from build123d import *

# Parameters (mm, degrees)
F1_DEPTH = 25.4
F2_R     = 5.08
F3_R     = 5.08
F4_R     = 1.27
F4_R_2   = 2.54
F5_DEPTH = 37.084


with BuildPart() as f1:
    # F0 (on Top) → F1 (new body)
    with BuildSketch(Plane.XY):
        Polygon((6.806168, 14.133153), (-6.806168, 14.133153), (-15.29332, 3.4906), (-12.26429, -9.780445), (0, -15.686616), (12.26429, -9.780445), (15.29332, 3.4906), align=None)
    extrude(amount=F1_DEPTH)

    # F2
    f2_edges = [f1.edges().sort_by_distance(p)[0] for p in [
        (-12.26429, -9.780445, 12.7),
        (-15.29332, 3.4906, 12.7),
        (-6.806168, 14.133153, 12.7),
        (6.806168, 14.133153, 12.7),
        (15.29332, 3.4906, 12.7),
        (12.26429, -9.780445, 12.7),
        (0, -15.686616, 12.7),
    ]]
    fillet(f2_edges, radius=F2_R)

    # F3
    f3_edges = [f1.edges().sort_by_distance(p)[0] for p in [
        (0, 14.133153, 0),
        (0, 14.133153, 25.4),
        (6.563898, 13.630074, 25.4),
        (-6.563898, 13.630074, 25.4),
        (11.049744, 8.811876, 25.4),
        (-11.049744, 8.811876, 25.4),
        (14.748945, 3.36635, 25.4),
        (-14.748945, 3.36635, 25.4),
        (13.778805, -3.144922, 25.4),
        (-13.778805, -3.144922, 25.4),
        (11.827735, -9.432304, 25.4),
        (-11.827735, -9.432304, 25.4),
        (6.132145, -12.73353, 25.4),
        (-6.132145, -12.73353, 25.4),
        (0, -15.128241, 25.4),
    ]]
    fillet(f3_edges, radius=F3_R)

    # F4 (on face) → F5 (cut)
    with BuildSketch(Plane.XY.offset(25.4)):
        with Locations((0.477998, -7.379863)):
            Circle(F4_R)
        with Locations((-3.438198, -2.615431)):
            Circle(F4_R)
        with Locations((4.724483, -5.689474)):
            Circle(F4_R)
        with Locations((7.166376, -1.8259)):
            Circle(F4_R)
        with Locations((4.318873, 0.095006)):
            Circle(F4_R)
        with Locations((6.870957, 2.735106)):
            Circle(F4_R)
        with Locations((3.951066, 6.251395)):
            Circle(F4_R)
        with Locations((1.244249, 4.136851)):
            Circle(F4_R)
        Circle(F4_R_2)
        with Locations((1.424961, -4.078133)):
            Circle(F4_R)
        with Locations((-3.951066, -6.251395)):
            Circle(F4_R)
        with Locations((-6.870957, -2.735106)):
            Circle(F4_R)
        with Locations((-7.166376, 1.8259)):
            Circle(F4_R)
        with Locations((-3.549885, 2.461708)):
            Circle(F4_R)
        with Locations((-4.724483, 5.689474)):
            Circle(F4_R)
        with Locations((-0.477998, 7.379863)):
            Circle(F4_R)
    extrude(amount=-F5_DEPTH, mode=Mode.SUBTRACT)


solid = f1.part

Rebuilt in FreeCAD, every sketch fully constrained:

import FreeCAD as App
import Part
import Sketcher
Q = App.Units.Quantity


def edges_at(feature, points):
    """Names of the edges that pass closest to the given points."""
    edges = feature.Shape.Edges
    near = lambda p: min(range(len(edges)), key=lambda i: edges[i].distToShape(Part.Vertex(*p))[0])
    return sorted({f"Edge{near(p) + 1}" for p in points})

doc = App.newDocument("Part")
body = doc.addObject("PartDesign::Body", "Body")

# Sketch on XY plane
sketch1 = body.newObject("Sketcher::SketchObject", "Sketch")
sketch1.AttachmentSupport = (doc.getObject("XY_Plane"), [""])
sketch1.MapMode = "FlatFace"
sketch1.addGeometry([
    Part.LineSegment(App.Vector(7, 14, 0), App.Vector(-7, 14, 0)),  # 0
    Part.LineSegment(App.Vector(-7, 14, 0), App.Vector(-15, 3, 0)),  # 1
    Part.LineSegment(App.Vector(-15, 3, 0), App.Vector(-12, -10, 0)),  # 2
    Part.LineSegment(App.Vector(-12, -10, 0), App.Vector(0, -16, 0)),  # 3
    Part.LineSegment(App.Vector(0, -16, 0), App.Vector(12, -10, 0)),  # 4
    Part.LineSegment(App.Vector(12, -10, 0), App.Vector(15, 3, 0)),  # 5
    Part.LineSegment(App.Vector(15, 3, 0), App.Vector(7, 14, 0)),  # 6
], False)
sketch1.addConstraint([
    Sketcher.Constraint("Coincident", 0, 2, 1, 1),
    Sketcher.Constraint("Coincident", 1, 2, 2, 1),
    Sketcher.Constraint("Coincident", 2, 2, 3, 1),
    Sketcher.Constraint("Coincident", 3, 2, 4, 1),
    Sketcher.Constraint("Coincident", 4, 2, 5, 1),
    Sketcher.Constraint("Coincident", 5, 2, 6, 1),
    Sketcher.Constraint("Coincident", 6, 2, 0, 1),
    Sketcher.Constraint("Horizontal", 0),
    Sketcher.Constraint("Symmetric", 2, 2, 4, 2, -2),
    Sketcher.Constraint("Symmetric", 1, 2, 5, 2, -2),
    Sketcher.Constraint("PointOnObject", 3, 2, -2),
    Sketcher.Constraint("Equal", 1, 2),
    Sketcher.Constraint("Equal", 2, 3),
    Sketcher.Constraint("Equal", 5, 6),
    Sketcher.Constraint("DistanceY", -1, 1, 1, 2, Q("3.4906 mm")),
    Sketcher.Constraint("DistanceY", 2, 2, 0, 2, Q("23.913598 mm")),
    Sketcher.Constraint("DistanceX", 0, 2, 0, 1, Q("13.612336 mm")),
    Sketcher.Constraint("DistanceX", 1, 2, -1, 1, Q("15.29332 mm")),
    Sketcher.Constraint("DistanceX", 2, 2, -1, 1, Q("12.26429 mm")),
])
pad1 = body.newObject("PartDesign::Pad", "Pad")
pad1.Profile = sketch1
pad1.Length = Q("1 in")
doc.recompute()

fillet = body.newObject("PartDesign::Fillet", "Fillet")
fillet.Base = (pad1, edges_at(pad1, [
    (-12.264, -9.78, 12.7),
    (-15.293, 3.491, 12.7),
    (-6.806, 14.133, 12.7),
    (6.806, 14.133, 12.7),
    (15.293, 3.491, 12.7),
    (12.264, -9.78, 12.7),
    (0, -15.687, 12.7),
]))
fillet.Radius = Q("0.2 in")
doc.recompute()

fillet2 = body.newObject("PartDesign::Fillet", "Fillet001")
fillet2.Base = (fillet, edges_at(fillet, [
    (0, 14.133, 0),
    (0, 14.133, 25.4),
    (6.564, 13.63, 25.4),
    (-6.564, 13.63, 25.4),
    (11.05, 8.812, 25.4),
    (-11.05, 8.812, 25.4),
    (14.749, 3.366, 25.4),
    (-14.749, 3.366, 25.4),
    (13.779, -3.145, 25.4),
    (-13.779, -3.145, 25.4),
    (11.828, -9.432, 25.4),
    (-11.828, -9.432, 25.4),
    (6.132, -12.734, 25.4),
    (-6.132, -12.734, 25.4),
    (0, -15.128, 25.4),
]))
fillet2.Radius = Q("0.2 in")

# Sketch on XY plane
sketch2 = body.newObject("Sketcher::SketchObject", "Sketch001")
sketch2.AttachmentSupport = (doc.getObject("XY_Plane"), [""])
sketch2.MapMode = "FlatFace"
sketch2.AttachmentOffset = App.Placement(App.Vector(0, 0, 1 * 25.4), App.Rotation())
sketch2.addGeometry([
    Part.Circle(App.Vector(0.5, -7.4, 0), App.Vector(0, 0, 1), 1.3),  # 0
    Part.Circle(App.Vector(-3.4, -2.6, 0), App.Vector(0, 0, 1), 1.3),  # 1
    Part.Circle(App.Vector(4.7, -5.7, 0), App.Vector(0, 0, 1), 1.3),  # 2
    Part.Circle(App.Vector(7.2, -1.8, 0), App.Vector(0, 0, 1), 1.3),  # 3
    Part.Circle(App.Vector(4.3, 0.1, 0), App.Vector(0, 0, 1), 1.3),  # 4
    Part.Circle(App.Vector(6.9, 2.7, 0), App.Vector(0, 0, 1), 1.3),  # 5
    Part.Circle(App.Vector(4, 6.3, 0), App.Vector(0, 0, 1), 1.3),  # 6
    Part.Circle(App.Vector(1.2, 4.1, 0), App.Vector(0, 0, 1), 1.3),  # 7
    Part.Circle(App.Vector(0, 0, 0), App.Vector(0, 0, 1), 2.5),  # 8
    Part.Circle(App.Vector(1.4, -4.1, 0), App.Vector(0, 0, 1), 1.3),  # 9
    Part.Circle(App.Vector(-4, -6.3, 0), App.Vector(0, 0, 1), 1.3),  # 10
    Part.Circle(App.Vector(-6.9, -2.7, 0), App.Vector(0, 0, 1), 1.3),  # 11
    Part.Circle(App.Vector(-7.2, 1.8, 0), App.Vector(0, 0, 1), 1.3),  # 12
    Part.Circle(App.Vector(-3.5, 2.5, 0), App.Vector(0, 0, 1), 1.3),  # 13
    Part.Circle(App.Vector(-4.7, 5.7, 0), App.Vector(0, 0, 1), 1.3),  # 14
    Part.Circle(App.Vector(-0.5, 7.4, 0), App.Vector(0, 0, 1), 1.3),  # 15
], False)
sketch2.addConstraint([
    Sketcher.Constraint("Coincident", 8, 3, -1, 1),
    Sketcher.Constraint("Equal", 0, 1),
    Sketcher.Constraint("Equal", 1, 2),
    Sketcher.Constraint("Equal", 2, 3),
    Sketcher.Constraint("Equal", 3, 4),
    Sketcher.Constraint("Equal", 4, 5),
    Sketcher.Constraint("Equal", 5, 6),
    Sketcher.Constraint("Equal", 6, 7),
    Sketcher.Constraint("Equal", 7, 9),
    Sketcher.Constraint("Equal", 9, 10),
    Sketcher.Constraint("Equal", 10, 11),
    Sketcher.Constraint("Equal", 11, 12),
    Sketcher.Constraint("Equal", 12, 13),
    Sketcher.Constraint("Equal", 13, 14),
    Sketcher.Constraint("Equal", 14, 15),
    Sketcher.Constraint("Symmetric", 6, 3, 10, 3, -1, 1),
    Sketcher.Constraint("Symmetric", 5, 3, 11, 3, -1, 1),
    Sketcher.Constraint("Symmetric", 3, 3, 12, 3, -1, 1),
    Sketcher.Constraint("Symmetric", 2, 3, 14, 3, -1, 1),
    Sketcher.Constraint("Symmetric", 0, 3, 15, 3, -1, 1),
    Sketcher.Constraint("Diameter", 0, Q("0.1 in")),
    Sketcher.Constraint("Diameter", 8, Q("0.2 in")),
    Sketcher.Constraint("DistanceY", 3, 3, -1, 1, Q("1.8259 mm")),
    Sketcher.Constraint("DistanceY", 4, 3, 5, 3, Q("2.6401 mm")),
    Sketcher.Constraint("DistanceY", 1, 3, -1, 1, Q("2.615431 mm")),
    Sketcher.Constraint("DistanceX", -1, 1, 7, 3, Q("1.244249 mm")),
    Sketcher.Constraint("DistanceY", -1, 1, 7, 3, Q("4.136851 mm")),
    Sketcher.Constraint("DistanceX", -1, 1, 9, 3, Q("1.424961 mm")),
    Sketcher.Constraint("DistanceY", 0, 3, 2, 3, Q("1.690389 mm")),
    Sketcher.Constraint("DistanceX", 1, 3, 2, 3, Q("8.162681 mm")),
    Sketcher.Constraint("DistanceX", 4, 3, 2, 3, Q("0.40561 mm")),
    Sketcher.Constraint("DistanceY", 2, 3, 4, 3, Q("5.78448 mm")),
    Sketcher.Constraint("DistanceX", 5, 3, 3, 3, Q("0.295419 mm")),
    Sketcher.Constraint("DistanceX", 0, 3, 5, 3, Q("6.392959 mm")),
    Sketcher.Constraint("DistanceX", 6, 3, 5, 3, Q("2.919891 mm")),
    Sketcher.Constraint("DistanceY", 5, 3, 6, 3, Q("3.516289 mm")),
    Sketcher.Constraint("DistanceY", 0, 3, 9, 3, Q("3.30173 mm")),
    Sketcher.Constraint("DistanceX", 1, 3, 9, 3, Q("4.863159 mm")),
    Sketcher.Constraint("DistanceX", 10, 3, 1, 3, Q("0.512868 mm")),
    Sketcher.Constraint("DistanceY", 0, 3, 10, 3, Q("1.128468 mm")),
    Sketcher.Constraint("DistanceX", 12, 3, 13, 3, Q("3.616491 mm")),
    Sketcher.Constraint("DistanceY", 1, 3, 13, 3, Q("5.077139 mm")),
])
pocket1 = body.newObject("PartDesign::Pocket", "Pocket")
pocket1.Profile = sketch2
pocket1.Length = Q("1.46 in")

doc.recompute()
